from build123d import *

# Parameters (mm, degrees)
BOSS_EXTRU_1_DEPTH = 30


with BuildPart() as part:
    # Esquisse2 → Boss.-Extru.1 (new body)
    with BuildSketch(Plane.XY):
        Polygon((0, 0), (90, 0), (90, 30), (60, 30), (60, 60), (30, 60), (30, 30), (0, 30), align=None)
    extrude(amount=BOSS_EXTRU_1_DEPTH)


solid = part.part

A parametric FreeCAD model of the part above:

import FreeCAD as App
import Part
import Sketcher

V = App.Vector


def add_polygon(sketch, points):
    """Adds a closed chain of lines whose ends are joined by coincident constraints."""
    first, n = sketch.GeometryCount, len(points)
    for a, b in zip(points, points[1:] + points[:1]):
        sketch.addGeometry(Part.LineSegment(App.Vector(*a, 0), App.Vector(*b, 0)), False)
    for i in range(n):
        sketch.addConstraint(Sketcher.Constraint("Coincident", first + i, 2, first + (i + 1) % n, 1))

doc = App.newDocument("Part")
body = doc.addObject("PartDesign::Body", "Body")

# Sketch on XY plane
sketch1 = doc.addObject("Sketcher::SketchObject", "Sketch")
body.addObject(sketch1)
sketch1.AttachmentSupport = (doc.XY_Plane, [""])
sketch1.MapMode = "FlatFace"
add_polygon(sketch1, [(0, 0), (90, 0), (90, 30), (60, 30), (60, 60), (30, 60), (30, 30), (0, 30)])  # lines 0-7
sketch1.addConstraint([
    Sketcher.Constraint("Horizontal", 0),
    Sketcher.Constraint("Vertical", 1),
    Sketcher.Constraint("Horizontal", 2),
    Sketcher.Constraint("Vertical", 3),
    Sketcher.Constraint("Horizontal", 4),
    Sketcher.Constraint("Vertical", 5),
    Sketcher.Constraint("Horizontal", 6),
    Sketcher.Constraint("Vertical", 7),
    Sketcher.Constraint("Coincident", 7, 2, -1, 1),
    Sketcher.Constraint("Horizontal", 2, 2, 5, 2),
    Sketcher.Constraint("Equal", 2, 4),
    Sketcher.Constraint("Equal", 4, 6),
    Sketcher.Constraint("Equal", 6, 1),
    Sketcher.Constraint("Equal", 1, 3),
    Sketcher.Constraint("DistanceX", 0, 1, 0, 2, 90.0),
])
pad1 = doc.addObject("PartDesign::Pad", "Pad")
body.addObject(pad1)
pad1.Profile = sketch1
pad1.Length = 30

doc.recompute()
